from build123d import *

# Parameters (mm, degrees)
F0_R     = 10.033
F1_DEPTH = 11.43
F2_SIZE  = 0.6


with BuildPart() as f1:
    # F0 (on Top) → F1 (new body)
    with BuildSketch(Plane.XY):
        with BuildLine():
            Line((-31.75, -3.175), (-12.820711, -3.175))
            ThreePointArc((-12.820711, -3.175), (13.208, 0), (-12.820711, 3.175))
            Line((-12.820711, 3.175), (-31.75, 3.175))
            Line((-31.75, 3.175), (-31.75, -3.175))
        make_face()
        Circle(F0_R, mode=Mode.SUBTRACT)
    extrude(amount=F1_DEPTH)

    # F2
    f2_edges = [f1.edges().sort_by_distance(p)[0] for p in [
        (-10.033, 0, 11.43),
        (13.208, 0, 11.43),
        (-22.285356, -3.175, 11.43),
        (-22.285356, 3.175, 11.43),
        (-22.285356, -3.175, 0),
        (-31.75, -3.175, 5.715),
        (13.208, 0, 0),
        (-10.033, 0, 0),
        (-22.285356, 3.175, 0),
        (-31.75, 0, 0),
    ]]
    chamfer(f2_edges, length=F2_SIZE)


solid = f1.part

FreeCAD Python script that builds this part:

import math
import FreeCAD as App
import Part
import Sketcher
from FreeCAD import Vector
Q = App.Units.Quantity


def edges_at(feature, points):
    """Names of the edges that pass closest to the given points."""
    edges = feature.Shape.Edges
    near = lambda p: min(range(len(edges)), key=lambda i: edges[i].distToShape(Part.Vertex(*p))[0])
    return sorted({f"Edge{near(p) + 1}" for p in points})

doc = App.newDocument("Part")
body = doc.addObject("PartDesign::Body", "Body")

# Sketch on XY plane
sketch1 = body.newObject("Sketcher::SketchObject", "Sketch")
sketch1.AttachmentSupport = (doc.getObject("XY_Plane"), [""])
sketch1.MapMode = "FlatFace"
sketch1.addGeometry(Part.LineSegment(Vector(-32, -3, 0), Vector(-13, -3, 0)), False)
sketch1.addGeometry(Part.ArcOfCircle(Part.Circle(Vector(0, 0, 0), Vector(0, 0, 1), 13), math.radians(-166), math.radians(166)), False)
sketch1.addGeometry(Part.LineSegment(Vector(-13, 3, 0), Vector(-32, 3, 0)), False)
sketch1.addGeometry(Part.LineSegment(Vector(-32, 3, 0), Vector(-32, -3, 0)), False)
sketch1.addGeometry(Part.Circle(Vector(0, 0, 0), Vector(0, 0, 1), 10), False)
sketch1.addConstraint(Sketcher.Constraint("Coincident", 0, 2, 1, 1))
sketch1.addConstraint(Sketcher.Constraint("Coincident", 1, 2, 2, 1))
sketch1.addConstraint(Sketcher.Constraint("Coincident", 2, 2, 3, 1))
sketch1.addConstraint(Sketcher.Constraint("Coincident", 3, 2, 0, 1))
sketch1.addConstraint(Sketcher.Constraint("Horizontal", 0))
sketch1.addConstraint(Sketcher.Constraint("Horizontal", 2))
sketch1.addConstraint(Sketcher.Constraint("Vertical", 3))
sketch1.addConstraint(Sketcher.Constraint("Coincident", 1, 3, -1, 1))
sketch1.addConstraint(Sketcher.Constraint("Coincident", 4, 3, -1, 1))
sketch1.addConstraint(Sketcher.Constraint("Vertical", 0, 2, 1, 2))
sketch1.addConstraint(Sketcher.Constraint("Diameter", 4, Q("0.79 in")))
sketch1.addConstraint(Sketcher.Constraint("Radius", 1, Q("0.52 in")))
sketch1.addConstraint(Sketcher.Constraint("DistanceY", 3, 2, 3, 1, Q("0.25 in")))
sketch1.addConstraint(Sketcher.Constraint("DistanceX", 2, 2, -1, 1, Q("1.25 in")))
pad1 = body.newObject("PartDesign::Pad", "Pad")
pad1.Profile = sketch1
pad1.Length = Q("0.45 in")
doc.recompute()

chamfer = body.newObject("PartDesign::Chamfer", "Chamfer")
chamfer.Base = (pad1, edges_at(pad1, [
    (-10.033, 0, 11.43),
    (13.208, 0, 11.43),
    (-22.285, -3.175, 11.43),
    (-22.285, 3.175, 11.43),
    (-22.285, -3.175, 0),
    (-31.75, -3.175, 5.715),
    (13.208, 0, 0),
    (-10.033, 0, 0),
    (-22.285, 3.175, 0),
    (-31.75, 0, 0),
]))
chamfer.Size = 0.6

doc.recompute()
